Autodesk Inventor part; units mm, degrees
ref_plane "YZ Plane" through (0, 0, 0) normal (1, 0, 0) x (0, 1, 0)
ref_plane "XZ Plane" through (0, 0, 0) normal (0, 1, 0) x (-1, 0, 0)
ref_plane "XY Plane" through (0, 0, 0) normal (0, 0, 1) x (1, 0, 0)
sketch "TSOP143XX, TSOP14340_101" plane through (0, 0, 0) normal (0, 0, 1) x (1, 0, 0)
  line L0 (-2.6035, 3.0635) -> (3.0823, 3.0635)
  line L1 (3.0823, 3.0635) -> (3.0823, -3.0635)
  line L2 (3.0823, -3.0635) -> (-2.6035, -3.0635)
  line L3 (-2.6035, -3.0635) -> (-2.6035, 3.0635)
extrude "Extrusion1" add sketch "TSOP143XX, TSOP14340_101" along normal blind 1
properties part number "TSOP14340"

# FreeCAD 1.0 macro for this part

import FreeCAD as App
import Part
import Sketcher
from FreeCAD import Vector


def add_polygon(sketch, points):
    """Adds a closed chain of lines whose ends are joined by coincident constraints."""
    first, n = sketch.GeometryCount, len(points)
    for a, b in zip(points, points[1:] + points[:1]):
        sketch.addGeometry(Part.LineSegment(App.Vector(*a, 0), App.Vector(*b, 0)), False)
    for i in range(n):
        sketch.addConstraint(Sketcher.Constraint("Coincident", first + i, 2, first + (i + 1) % n, 1))

doc = App.newDocument("Part")
params = doc.addObject("Spreadsheet::Sheet", "Params")
for row, (alias, value) in enumerate([
    ("pad1_length", "1 mm"),
], start=1):
    params.set(f"A{row}", alias)
    params.set(f"B{row}", "=" + value)
    params.setAlias(f"B{row}", alias)

body = doc.addObject("PartDesign::Body", "Body")

sketch1 = body.newObject("Sketcher::SketchObject", "Sketch")
sketch1.AttachmentSupport = (doc.getObject("XY_Plane"), [""])
sketch1.MapMode = "FlatFace"
add_polygon(sketch1, [(3.0823, 3.0635), (-2.6035, 3.0635), (-2.6035, -3.0635), (3.0823, -3.0635)])
sketch1.addConstraint([
    Sketcher.Constraint("Horizontal", 0),
    Sketcher.Constraint("Vertical", 1),
    Sketcher.Constraint("Horizontal", 2),
    Sketcher.Constraint("Vertical", 3),
    Sketcher.Constraint("DistanceY", 1, 2, 1, 1, 6.127),
    Sketcher.Constraint("DistanceX", 0, 2, 0, 1, 5.6858),
    Sketcher.Constraint("DistanceX", 0, 2, -1, 1, 2.6035),
    Sketcher.Constraint("DistanceY", -1, 1, 0, 2, 3.0635),
])
pad1 = body.newObject("PartDesign::Pad", "Pad")
pad1.Profile = sketch1
pad1.setExpression("Length", "Params.pad1_length")

doc.recompute()
